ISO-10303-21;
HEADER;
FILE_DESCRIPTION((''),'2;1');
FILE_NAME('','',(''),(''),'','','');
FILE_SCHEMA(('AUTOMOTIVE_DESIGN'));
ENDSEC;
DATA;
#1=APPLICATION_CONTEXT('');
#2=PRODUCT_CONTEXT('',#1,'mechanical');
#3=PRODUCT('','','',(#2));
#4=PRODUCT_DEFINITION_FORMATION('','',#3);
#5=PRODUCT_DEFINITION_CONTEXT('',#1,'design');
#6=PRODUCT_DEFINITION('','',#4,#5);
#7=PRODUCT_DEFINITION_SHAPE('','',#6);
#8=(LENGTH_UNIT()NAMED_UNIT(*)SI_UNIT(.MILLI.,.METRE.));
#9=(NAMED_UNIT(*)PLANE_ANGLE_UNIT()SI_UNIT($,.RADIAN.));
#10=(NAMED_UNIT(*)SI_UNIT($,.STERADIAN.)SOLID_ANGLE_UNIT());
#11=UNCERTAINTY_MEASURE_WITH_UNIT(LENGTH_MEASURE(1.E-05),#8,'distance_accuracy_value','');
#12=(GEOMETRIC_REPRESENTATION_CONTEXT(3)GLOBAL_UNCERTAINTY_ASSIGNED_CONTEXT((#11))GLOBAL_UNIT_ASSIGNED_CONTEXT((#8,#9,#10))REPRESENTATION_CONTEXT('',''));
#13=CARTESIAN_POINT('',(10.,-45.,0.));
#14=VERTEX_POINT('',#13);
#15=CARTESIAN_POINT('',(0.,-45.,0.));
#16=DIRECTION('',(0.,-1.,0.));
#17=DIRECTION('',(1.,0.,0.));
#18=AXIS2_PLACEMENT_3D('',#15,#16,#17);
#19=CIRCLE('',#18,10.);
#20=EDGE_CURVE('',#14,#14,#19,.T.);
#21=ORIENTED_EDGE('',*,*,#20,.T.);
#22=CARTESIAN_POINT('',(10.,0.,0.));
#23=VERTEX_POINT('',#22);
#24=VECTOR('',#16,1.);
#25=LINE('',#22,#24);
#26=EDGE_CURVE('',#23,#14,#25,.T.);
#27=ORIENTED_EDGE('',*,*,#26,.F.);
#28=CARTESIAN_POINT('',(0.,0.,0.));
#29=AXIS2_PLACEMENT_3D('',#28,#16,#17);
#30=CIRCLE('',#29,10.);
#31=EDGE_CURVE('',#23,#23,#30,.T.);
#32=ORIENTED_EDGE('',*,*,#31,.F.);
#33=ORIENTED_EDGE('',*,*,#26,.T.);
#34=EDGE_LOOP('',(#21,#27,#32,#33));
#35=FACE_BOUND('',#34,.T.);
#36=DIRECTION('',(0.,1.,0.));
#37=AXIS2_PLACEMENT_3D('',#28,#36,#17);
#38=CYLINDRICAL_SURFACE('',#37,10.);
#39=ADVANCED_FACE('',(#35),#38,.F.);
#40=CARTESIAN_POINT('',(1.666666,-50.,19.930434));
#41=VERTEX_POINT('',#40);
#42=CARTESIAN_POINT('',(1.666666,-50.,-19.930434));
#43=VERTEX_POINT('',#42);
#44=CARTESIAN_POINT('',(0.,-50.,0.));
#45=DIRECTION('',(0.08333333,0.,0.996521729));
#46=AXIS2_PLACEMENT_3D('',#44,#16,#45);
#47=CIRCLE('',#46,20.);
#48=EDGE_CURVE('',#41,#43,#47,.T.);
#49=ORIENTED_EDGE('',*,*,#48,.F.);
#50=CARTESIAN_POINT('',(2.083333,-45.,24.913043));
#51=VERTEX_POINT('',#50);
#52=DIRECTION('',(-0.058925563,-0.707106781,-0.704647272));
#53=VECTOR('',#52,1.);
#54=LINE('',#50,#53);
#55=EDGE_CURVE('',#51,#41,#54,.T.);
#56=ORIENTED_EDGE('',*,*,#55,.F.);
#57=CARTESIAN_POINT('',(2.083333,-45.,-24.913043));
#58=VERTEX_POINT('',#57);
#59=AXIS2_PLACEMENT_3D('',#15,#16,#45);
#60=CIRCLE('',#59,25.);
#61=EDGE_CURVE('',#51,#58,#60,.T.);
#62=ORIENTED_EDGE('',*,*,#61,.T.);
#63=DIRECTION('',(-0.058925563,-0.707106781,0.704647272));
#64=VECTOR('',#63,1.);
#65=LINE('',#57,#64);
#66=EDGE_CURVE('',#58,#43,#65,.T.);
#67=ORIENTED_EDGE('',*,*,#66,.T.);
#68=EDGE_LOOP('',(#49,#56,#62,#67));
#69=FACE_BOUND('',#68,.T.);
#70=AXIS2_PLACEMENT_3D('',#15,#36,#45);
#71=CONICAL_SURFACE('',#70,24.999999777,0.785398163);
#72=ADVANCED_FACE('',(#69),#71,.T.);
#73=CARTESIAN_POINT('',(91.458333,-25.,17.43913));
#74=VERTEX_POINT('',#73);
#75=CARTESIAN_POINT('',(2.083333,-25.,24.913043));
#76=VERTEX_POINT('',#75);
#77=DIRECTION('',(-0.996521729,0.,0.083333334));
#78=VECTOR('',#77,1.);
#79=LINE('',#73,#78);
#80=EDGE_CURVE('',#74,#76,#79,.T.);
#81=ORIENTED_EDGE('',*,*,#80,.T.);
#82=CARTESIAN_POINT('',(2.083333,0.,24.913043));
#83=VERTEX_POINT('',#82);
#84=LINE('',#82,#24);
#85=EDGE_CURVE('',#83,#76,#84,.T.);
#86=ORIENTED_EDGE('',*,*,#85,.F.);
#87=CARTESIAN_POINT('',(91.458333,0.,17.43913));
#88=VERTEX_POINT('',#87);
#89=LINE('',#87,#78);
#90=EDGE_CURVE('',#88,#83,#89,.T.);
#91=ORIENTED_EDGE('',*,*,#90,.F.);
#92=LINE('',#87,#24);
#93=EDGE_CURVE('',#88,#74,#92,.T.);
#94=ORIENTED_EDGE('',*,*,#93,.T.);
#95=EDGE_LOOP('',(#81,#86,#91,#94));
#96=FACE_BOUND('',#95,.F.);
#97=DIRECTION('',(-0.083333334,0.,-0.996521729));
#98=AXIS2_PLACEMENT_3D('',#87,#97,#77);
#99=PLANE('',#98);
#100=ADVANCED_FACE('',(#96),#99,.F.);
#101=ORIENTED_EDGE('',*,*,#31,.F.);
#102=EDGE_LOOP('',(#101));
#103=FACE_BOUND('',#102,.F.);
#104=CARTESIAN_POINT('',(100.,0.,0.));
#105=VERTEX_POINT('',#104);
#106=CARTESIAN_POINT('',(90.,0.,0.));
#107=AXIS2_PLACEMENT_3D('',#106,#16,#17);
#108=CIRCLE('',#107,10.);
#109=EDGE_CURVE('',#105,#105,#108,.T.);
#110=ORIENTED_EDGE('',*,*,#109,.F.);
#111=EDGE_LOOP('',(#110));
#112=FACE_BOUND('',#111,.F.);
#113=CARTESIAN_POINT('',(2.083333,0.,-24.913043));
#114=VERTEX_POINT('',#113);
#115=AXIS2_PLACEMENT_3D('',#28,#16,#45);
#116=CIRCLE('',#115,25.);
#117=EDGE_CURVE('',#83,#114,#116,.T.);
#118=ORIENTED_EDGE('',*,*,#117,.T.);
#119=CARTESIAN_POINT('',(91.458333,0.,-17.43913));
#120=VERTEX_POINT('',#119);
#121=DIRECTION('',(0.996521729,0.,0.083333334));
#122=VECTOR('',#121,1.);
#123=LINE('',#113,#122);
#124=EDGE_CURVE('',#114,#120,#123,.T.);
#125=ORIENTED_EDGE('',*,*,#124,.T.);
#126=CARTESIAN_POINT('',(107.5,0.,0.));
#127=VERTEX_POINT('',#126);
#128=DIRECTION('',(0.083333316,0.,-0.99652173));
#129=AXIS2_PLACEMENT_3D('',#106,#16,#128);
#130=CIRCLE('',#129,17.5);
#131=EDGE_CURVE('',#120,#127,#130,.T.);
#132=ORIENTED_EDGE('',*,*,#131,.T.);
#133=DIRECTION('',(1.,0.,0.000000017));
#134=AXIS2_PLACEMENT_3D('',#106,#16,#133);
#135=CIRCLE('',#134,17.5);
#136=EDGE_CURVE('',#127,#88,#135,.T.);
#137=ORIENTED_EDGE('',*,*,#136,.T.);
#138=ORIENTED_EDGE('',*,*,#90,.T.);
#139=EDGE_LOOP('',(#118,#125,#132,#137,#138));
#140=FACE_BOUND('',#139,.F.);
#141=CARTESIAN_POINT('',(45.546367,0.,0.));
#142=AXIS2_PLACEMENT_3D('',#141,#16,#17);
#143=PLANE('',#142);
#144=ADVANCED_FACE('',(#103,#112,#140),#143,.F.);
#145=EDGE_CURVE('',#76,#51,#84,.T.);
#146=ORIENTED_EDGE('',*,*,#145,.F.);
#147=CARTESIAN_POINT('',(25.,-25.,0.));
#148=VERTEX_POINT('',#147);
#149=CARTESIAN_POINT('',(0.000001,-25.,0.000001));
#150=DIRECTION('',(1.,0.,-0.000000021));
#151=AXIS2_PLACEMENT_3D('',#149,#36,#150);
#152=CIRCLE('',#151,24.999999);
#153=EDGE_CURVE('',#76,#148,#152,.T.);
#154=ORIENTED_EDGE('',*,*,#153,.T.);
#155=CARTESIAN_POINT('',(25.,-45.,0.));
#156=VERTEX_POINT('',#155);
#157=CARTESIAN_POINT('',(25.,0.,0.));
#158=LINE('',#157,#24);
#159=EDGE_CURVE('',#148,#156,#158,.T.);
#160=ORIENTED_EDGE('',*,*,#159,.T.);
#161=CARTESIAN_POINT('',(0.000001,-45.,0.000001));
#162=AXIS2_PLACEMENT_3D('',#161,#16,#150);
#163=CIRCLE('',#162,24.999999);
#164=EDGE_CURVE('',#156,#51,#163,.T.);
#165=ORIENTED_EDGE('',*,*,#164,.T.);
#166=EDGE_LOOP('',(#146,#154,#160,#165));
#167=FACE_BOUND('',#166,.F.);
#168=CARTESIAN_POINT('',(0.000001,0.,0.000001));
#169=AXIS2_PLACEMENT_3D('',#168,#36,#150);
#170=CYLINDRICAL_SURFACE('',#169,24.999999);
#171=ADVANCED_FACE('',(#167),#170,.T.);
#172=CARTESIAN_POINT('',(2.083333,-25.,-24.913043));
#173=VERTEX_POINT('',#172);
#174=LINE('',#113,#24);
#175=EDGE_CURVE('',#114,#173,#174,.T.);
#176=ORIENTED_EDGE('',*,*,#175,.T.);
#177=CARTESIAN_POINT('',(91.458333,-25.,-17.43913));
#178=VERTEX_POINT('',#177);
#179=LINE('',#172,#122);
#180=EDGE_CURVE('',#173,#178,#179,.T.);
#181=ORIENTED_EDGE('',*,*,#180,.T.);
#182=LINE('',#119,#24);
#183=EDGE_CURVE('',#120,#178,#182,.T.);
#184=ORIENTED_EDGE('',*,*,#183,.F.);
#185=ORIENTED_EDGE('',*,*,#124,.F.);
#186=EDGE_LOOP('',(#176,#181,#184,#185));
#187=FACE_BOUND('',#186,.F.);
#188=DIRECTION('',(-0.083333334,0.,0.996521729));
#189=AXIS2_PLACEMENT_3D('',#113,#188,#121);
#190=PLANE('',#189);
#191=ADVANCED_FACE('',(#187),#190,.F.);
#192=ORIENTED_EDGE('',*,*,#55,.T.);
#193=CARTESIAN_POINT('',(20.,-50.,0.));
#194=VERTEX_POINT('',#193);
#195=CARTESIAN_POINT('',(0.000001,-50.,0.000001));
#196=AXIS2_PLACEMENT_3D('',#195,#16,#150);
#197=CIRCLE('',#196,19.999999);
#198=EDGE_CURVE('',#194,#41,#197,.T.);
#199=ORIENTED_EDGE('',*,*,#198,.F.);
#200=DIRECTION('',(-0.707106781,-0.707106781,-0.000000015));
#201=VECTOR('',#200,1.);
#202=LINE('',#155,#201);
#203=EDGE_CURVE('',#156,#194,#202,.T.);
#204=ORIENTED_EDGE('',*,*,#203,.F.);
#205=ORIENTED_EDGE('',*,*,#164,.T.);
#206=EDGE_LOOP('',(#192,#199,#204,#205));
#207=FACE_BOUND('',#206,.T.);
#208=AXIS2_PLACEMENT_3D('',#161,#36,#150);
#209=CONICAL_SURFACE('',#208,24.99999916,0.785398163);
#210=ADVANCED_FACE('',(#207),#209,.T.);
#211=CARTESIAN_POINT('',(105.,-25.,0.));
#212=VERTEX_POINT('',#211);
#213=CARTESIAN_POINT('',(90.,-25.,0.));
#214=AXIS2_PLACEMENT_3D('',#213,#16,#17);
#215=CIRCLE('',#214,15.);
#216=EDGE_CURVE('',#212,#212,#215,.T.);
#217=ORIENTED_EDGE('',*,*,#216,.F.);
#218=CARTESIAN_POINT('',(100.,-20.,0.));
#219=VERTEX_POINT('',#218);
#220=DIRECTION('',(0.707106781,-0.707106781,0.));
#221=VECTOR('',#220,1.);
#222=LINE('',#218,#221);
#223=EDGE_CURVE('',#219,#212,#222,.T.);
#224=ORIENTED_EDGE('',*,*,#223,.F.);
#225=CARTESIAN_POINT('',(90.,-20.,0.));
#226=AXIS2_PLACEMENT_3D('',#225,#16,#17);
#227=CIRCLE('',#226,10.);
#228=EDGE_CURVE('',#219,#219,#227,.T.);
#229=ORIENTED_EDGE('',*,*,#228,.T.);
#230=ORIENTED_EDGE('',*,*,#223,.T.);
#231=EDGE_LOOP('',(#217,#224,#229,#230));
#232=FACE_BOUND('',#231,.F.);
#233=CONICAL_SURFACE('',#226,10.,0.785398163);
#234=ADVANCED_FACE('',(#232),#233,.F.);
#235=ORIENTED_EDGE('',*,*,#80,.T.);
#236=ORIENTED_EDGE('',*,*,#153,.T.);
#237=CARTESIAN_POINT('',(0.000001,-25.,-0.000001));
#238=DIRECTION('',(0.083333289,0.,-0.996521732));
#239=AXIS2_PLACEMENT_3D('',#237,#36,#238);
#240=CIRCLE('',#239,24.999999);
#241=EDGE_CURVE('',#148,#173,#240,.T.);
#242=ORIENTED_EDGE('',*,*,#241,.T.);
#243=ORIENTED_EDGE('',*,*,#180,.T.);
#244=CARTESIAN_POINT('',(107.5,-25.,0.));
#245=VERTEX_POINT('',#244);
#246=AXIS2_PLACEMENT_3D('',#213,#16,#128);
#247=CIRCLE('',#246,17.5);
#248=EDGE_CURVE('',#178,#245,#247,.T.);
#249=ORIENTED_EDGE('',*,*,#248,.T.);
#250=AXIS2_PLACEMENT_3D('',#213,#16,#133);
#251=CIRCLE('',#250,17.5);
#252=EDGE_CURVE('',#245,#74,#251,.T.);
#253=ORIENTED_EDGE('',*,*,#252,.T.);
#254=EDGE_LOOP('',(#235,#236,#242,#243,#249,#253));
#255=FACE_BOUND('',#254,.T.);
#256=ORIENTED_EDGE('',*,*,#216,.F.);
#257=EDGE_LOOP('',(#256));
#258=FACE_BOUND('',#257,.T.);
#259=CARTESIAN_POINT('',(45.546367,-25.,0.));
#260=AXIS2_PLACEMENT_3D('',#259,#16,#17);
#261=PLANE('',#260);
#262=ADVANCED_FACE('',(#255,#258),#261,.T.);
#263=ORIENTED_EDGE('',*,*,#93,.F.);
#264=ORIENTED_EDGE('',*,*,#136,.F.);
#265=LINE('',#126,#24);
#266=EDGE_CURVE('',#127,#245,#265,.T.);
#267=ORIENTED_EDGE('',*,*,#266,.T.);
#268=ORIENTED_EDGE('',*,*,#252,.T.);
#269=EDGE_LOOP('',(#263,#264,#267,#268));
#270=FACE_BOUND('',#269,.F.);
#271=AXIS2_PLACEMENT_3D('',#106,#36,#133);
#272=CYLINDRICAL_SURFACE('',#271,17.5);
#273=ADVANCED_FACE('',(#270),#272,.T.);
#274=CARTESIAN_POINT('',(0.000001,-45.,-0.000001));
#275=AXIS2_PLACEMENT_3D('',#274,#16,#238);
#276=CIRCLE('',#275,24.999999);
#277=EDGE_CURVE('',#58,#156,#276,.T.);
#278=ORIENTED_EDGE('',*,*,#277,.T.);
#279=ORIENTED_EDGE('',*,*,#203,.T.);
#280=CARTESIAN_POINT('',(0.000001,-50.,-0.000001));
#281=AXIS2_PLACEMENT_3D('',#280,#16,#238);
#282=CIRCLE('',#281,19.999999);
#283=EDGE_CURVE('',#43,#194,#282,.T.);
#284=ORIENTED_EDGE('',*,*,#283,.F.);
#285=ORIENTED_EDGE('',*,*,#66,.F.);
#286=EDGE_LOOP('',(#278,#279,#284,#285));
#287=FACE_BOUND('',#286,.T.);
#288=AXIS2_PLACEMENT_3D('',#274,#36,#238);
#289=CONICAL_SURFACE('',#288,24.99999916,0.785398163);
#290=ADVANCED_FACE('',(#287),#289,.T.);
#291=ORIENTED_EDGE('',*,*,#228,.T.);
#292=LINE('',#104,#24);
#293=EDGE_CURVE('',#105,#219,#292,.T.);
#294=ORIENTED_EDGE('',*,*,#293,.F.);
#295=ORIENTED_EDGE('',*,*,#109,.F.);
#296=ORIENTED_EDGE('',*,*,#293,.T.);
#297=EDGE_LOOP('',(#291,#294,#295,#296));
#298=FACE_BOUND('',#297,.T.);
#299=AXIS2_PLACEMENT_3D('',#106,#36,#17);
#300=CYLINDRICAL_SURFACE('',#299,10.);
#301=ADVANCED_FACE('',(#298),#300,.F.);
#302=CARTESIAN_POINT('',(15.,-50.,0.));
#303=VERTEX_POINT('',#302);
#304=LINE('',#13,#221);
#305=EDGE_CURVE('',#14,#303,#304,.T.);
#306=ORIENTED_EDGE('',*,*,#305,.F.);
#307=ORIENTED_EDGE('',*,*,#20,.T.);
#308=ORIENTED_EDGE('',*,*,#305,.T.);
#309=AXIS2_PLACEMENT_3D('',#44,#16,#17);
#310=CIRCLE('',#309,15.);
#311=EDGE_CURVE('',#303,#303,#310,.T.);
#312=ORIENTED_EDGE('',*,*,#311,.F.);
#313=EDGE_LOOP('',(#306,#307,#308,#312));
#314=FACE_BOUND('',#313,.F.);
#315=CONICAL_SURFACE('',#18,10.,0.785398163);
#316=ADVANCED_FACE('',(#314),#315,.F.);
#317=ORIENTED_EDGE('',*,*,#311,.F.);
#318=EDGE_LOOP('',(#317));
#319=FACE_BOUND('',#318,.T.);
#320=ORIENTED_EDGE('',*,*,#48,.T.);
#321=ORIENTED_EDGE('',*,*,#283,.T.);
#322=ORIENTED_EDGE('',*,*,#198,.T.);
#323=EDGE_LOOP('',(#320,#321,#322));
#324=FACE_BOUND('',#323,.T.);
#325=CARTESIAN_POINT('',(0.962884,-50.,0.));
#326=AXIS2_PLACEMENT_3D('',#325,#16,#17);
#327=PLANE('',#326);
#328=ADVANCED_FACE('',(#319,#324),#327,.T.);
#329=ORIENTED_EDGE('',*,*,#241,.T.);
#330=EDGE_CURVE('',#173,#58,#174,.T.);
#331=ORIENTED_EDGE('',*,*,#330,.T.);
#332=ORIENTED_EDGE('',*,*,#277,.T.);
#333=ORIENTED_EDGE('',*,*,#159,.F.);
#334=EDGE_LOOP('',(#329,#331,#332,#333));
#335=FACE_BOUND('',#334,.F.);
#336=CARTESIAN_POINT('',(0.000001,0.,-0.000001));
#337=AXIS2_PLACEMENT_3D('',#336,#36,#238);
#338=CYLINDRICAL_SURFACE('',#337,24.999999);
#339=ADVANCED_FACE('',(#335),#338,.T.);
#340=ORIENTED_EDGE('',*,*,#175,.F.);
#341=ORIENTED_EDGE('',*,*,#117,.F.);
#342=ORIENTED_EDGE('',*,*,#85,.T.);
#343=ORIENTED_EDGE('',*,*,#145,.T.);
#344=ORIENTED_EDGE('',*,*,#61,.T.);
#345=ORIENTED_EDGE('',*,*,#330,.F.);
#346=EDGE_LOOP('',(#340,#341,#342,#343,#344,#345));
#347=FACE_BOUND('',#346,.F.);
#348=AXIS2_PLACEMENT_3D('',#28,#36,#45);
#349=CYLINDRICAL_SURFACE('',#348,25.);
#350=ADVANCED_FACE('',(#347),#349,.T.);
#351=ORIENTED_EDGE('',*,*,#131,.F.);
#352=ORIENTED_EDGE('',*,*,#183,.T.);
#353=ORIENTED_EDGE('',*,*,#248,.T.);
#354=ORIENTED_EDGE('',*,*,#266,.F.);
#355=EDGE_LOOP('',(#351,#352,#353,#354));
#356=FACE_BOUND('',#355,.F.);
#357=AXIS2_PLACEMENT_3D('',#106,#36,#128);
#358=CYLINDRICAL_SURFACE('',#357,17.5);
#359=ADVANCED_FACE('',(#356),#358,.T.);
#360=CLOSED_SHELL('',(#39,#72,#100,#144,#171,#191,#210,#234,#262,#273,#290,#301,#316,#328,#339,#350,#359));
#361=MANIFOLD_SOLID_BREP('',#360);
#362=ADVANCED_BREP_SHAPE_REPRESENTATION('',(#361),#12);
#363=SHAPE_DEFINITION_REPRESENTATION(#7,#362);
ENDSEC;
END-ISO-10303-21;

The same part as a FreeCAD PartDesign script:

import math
import FreeCAD as App
import Part
import Sketcher


def edges_at(feature, points):
    """Names of the edges that pass closest to the given points."""
    edges = feature.Shape.Edges
    near = lambda p: min(range(len(edges)), key=lambda i: edges[i].distToShape(Part.Vertex(*p))[0])
    return sorted({f"Edge{near(p) + 1}" for p in points})

doc = App.newDocument("Part")
body = doc.addObject("PartDesign::Body", "Body")

# Sketch on XZ plane
sketch1 = body.newObject("Sketcher::SketchObject", "Sketch")
sketch1.AttachmentSupport = (doc.getObject("XZ_Plane"), [""])
sketch1.MapMode = "FlatFace"
sketch1.addGeometry([
    Part.LineSegment(App.Vector(91.458333, 17.43913, 0), App.Vector(2.083333, 24.913043, 0)),  # 0
    Part.ArcOfCircle(Part.Circle(App.Vector(0, 0, 0), App.Vector(0, 0, 1), 25), math.radians(85.219808), math.radians(274.780192)),  # 1
    Part.LineSegment(App.Vector(2.083333, -24.913043, 0), App.Vector(91.458333, -17.43913, 0)),  # 2
    Part.ArcOfCircle(Part.Circle(App.Vector(90, 0, 0), App.Vector(0, 0, 1), 17.5), math.radians(-85.219809), math.radians(-0.000001)),  # 3
    Part.ArcOfCircle(Part.Circle(App.Vector(90, 0, 0), App.Vector(0, 0, 1), 17.5), math.radians(0.000001), math.radians(85.219809)),  # 4
    Part.Circle(App.Vector(0, 0, 0), App.Vector(0, 0, 1), 10),  # 5
    Part.Circle(App.Vector(90, 0, 0), App.Vector(0, 0, 1), 10),  # 6
], False)
sketch1.addConstraint([
    Sketcher.Constraint("Tangent", 0, 2, 1, 1),
    Sketcher.Constraint("Tangent", 1, 2, 2, 1),
    Sketcher.Constraint("Tangent", 2, 2, 3, 1),
    Sketcher.Constraint("Tangent", 3, 2, 4, 1),
    Sketcher.Constraint("Tangent", 4, 2, 0, 1),
    Sketcher.Constraint("Coincident", 1, 3, -1, 1),
    Sketcher.Constraint("Coincident", 5, 3, -1, 1),
    Sketcher.Constraint("Coincident", 6, 3, 3, 3),
    Sketcher.Constraint("Equal", 3, 4),
    Sketcher.Constraint("Equal", 5, 6),
    Sketcher.Constraint("PointOnObject", 3, 3, -1),
    Sketcher.Constraint("PointOnObject", 3, 2, -1),
    Sketcher.Constraint("Diameter", 5, 20.0),
    Sketcher.Constraint("Radius", 1, 25.0),
    Sketcher.Constraint("Radius", 3, 17.5),
    Sketcher.Constraint("DistanceX", -1, 1, 3, 3, 90.0),
])
pad1 = body.newObject("PartDesign::Pad", "Pad")
pad1.Profile = sketch1
pad1.Length = 25

# Sketch on XZ plane
sketch2 = body.newObject("Sketcher::SketchObject", "Sketch001")
sketch2.AttachmentSupport = (doc.getObject("XZ_Plane"), [""])
sketch2.MapMode = "FlatFace"
sketch2.addGeometry([
    Part.ArcOfCircle(Part.Circle(App.Vector(0.000001, -0.000001, 0), App.Vector(0, 0, 1), 24.999999), math.radians(-85.219811), math.radians(0.000001)),
    Part.ArcOfCircle(Part.Circle(App.Vector(0.000001, 0.000001, 0), App.Vector(0, 0, 1), 24.999999), math.radians(-0.000001), math.radians(85.219811)),
    Part.ArcOfCircle(Part.Circle(App.Vector(0, 0, 0), App.Vector(0, 0, 1), 25), math.radians(85.219808), math.radians(274.780192)),
    Part.Circle(App.Vector(0, 0, 0), App.Vector(0, 0, 1), 10),
], False)
sketch2.addConstraint([
    Sketcher.Constraint("Tangent", 0, 2, 1, 1),
    Sketcher.Constraint("Tangent", 1, 2, 2, 1),
    Sketcher.Constraint("Tangent", 2, 2, 0, 1),
    Sketcher.Constraint("Coincident", 0, 3, -1, 1),
    Sketcher.Constraint("Coincident", 3, 3, -1, 1),
    Sketcher.Constraint("PointOnObject", 0, 2, -1),
    Sketcher.Constraint("Vertical", 1, 2, 2, 2),
    Sketcher.Constraint("Diameter", 3, 20.0),
    Sketcher.Constraint("Radius", 0, 24.999999),
    Sketcher.Constraint("DistanceX", -1, 1, 1, 2, 2.083333),
])
pad2 = body.newObject("PartDesign::Pad", "Pad001")
pad2.Profile = sketch2
pad2.Length = 50
doc.recompute()

chamfer = body.newObject("PartDesign::Chamfer", "Chamfer")
chamfer.Base = (pad2, edges_at(pad2, [(-25, -50, 0), (-10, -50, 0), (80, -25, 0)]))
chamfer.Size = 5

doc.recompute()
